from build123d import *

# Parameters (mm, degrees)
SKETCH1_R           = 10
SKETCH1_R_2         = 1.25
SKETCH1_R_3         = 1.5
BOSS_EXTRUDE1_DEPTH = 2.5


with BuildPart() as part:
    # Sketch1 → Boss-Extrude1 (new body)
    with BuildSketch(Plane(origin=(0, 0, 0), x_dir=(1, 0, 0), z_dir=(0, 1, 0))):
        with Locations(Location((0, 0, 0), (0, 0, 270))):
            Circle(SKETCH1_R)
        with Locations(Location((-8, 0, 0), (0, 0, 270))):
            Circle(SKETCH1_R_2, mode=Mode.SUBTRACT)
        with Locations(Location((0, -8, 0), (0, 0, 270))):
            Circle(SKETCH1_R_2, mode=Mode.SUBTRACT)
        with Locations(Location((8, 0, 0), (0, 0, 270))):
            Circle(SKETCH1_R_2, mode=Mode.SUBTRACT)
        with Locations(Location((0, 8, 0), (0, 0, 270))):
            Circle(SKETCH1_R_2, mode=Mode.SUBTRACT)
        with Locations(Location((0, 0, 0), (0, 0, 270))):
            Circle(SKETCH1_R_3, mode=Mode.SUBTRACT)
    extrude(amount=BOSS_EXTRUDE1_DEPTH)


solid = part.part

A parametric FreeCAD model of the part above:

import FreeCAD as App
import Part
import Sketcher

V = App.Vector
Q = App.Units.Quantity

doc = App.newDocument("Part")
body = doc.addObject("PartDesign::Body", "Body")

sketch1 = doc.addObject("Sketcher::SketchObject", "Sketch")
body.addObject(sketch1)
sketch1.AttachmentSupport = (doc.XZ_Plane, [""])
sketch1.MapMode = "FlatFace"
sketch1.addGeometry(Part.Circle(V(0, 0, 0), V(0, 0, 1), 10), False)
sketch1.addGeometry(Part.Circle(V(0, -8, 0), V(0, 0, 1), 1.25), False)
sketch1.addGeometry(Part.Circle(V(-8, 0, 0), V(0, 0, 1), 1.25), False)
sketch1.addGeometry(Part.Circle(V(8, 0, 0), V(0, 0, 1), 1.25), False)
sketch1.addGeometry(Part.Circle(V(0, 0, 0), V(0, 0, 1), 1.5), False)
sketch1.addGeometry(Part.Circle(V(0, 8, 0), V(0, 0, 1), 1.25), False)
sketch1.addConstraint(Sketcher.Constraint("Coincident", 0, 3, -1, 1))
sketch1.addConstraint(Sketcher.Constraint("Coincident", 4, 3, -1, 1))
sketch1.addConstraint(Sketcher.Constraint("Equal", 1, 2))
sketch1.addConstraint(Sketcher.Constraint("Equal", 2, 3))
sketch1.addConstraint(Sketcher.Constraint("Equal", 3, 5))
sketch1.addConstraint(Sketcher.Constraint("Symmetric", 2, 3, 3, 3, -1, 1))
sketch1.addConstraint(Sketcher.Constraint("Symmetric", 1, 3, 5, 3, -1, 1))
sketch1.addConstraint(Sketcher.Constraint("PointOnObject", 1, 3, -2))
sketch1.addConstraint(Sketcher.Constraint("PointOnObject", 2, 3, -1))
sketch1.addConstraint(Sketcher.Constraint("Diameter", 0, Q("20 mm")))
sketch1.addConstraint(Sketcher.Constraint("Diameter", 4, Q("3 mm")))
sketch1.addConstraint(Sketcher.Constraint("Diameter", 1, Q("2.5 mm")))
sketch1.addConstraint(Sketcher.Constraint("DistanceY", 1, 3, -1, 1, Q("8 mm")))
sketch1.addConstraint(Sketcher.Constraint("DistanceX", 2, 3, -1, 1, Q("8 mm")))
pad1 = doc.addObject("PartDesign::Pad", "Pad")
body.addObject(pad1)
pad1.Profile = sketch1
pad1.Length = 2.5
pad1.Reversed = True

doc.recompute()
